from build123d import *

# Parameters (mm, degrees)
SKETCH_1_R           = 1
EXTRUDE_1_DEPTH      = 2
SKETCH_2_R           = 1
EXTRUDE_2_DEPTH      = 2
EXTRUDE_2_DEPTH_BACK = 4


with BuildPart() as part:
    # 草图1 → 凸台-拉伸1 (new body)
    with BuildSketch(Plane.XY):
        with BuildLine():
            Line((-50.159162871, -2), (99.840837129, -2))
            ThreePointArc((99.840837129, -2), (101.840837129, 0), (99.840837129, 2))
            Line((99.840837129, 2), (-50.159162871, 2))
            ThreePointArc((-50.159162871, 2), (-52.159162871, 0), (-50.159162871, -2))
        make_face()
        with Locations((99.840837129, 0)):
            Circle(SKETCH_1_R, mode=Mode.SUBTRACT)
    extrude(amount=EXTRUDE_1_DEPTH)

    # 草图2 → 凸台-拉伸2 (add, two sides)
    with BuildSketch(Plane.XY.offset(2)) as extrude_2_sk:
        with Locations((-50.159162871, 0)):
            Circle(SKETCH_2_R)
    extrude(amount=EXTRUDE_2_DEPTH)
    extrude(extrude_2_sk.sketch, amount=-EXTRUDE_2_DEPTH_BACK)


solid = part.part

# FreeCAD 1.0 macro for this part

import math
import FreeCAD as App
import Part
import Sketcher
from FreeCAD import Vector

doc = App.newDocument("Part")
params = doc.addObject("Spreadsheet::Sheet", "Params")
for row, (alias, value) in enumerate([
    ("sketch1_diameter", "2 mm"),
    ("sketch1_radius", "2 mm"),
    ("sketch1_width", "150 mm"),
    ("pad1_length", "2 mm"),
    ("sketch2_diameter", "2 mm"),
    ("pad2_length", "2 mm"),
    ("pad2_length2", "4 mm"),
], start=1):
    params.set(f"A{row}", alias)
    params.set(f"B{row}", "=" + value)
    params.setAlias(f"B{row}", alias)

body = doc.addObject("PartDesign::Body", "Body")

# Sketch on XY plane
sketch1 = doc.addObject("Sketcher::SketchObject", "Sketch")
body.addObject(sketch1)
sketch1.AttachmentSupport = (doc.XY_Plane, [""])
sketch1.MapMode = "FlatFace"
sketch1.addGeometry(Part.LineSegment(Vector(-50.2, -2, 0), Vector(99.8, -2, 0)), False)
sketch1.addGeometry(Part.ArcOfCircle(Part.Circle(Vector(99.8, 0, 0), Vector(0, 0, 1), 2), math.radians(-90), math.radians(90)), False)
sketch1.addGeometry(Part.LineSegment(Vector(99.8, 2, 0), Vector(-50.2, 2, 0)), False)
sketch1.addGeometry(Part.ArcOfCircle(Part.Circle(Vector(-50.2, 0, 0), Vector(0, 0, 1), 2), math.radians(90), math.radians(270)), False)
sketch1.addGeometry(Part.Circle(Vector(99.8, 0, 0), Vector(0, 0, 1), 1), False)
sketch1.addConstraint(Sketcher.Constraint("Tangent", 0, 2, 1, 1))
sketch1.addConstraint(Sketcher.Constraint("Tangent", 1, 2, 2, 1))
sketch1.addConstraint(Sketcher.Constraint("Tangent", 2, 2, 3, 1))
sketch1.addConstraint(Sketcher.Constraint("Tangent", 3, 2, 0, 1))
sketch1.addConstraint(Sketcher.Constraint("Horizontal", 0))
sketch1.addConstraint(Sketcher.Constraint("Horizontal", 2))
sketch1.addConstraint(Sketcher.Constraint("Coincident", 4, 3, 1, 3))
sketch1.addConstraint(Sketcher.Constraint("PointOnObject", 1, 3, -1))
sketch1.addConstraint(Sketcher.Constraint("Diameter", 4, 2.0))
sketch1.addConstraint(Sketcher.Constraint("Radius", 1, 2.0))
sketch1.addConstraint(Sketcher.Constraint("DistanceX", 0, 1, 0, 2, 150.0))
sketch1.addConstraint(Sketcher.Constraint("DistanceX", -1, 1, 1, 3, 99.840837))
sketch1.setExpression("Constraints[8]", "Params.sketch1_diameter")
sketch1.setExpression("Constraints[9]", "Params.sketch1_radius")
sketch1.setExpression("Constraints[10]", "Params.sketch1_width")
pad1 = doc.addObject("PartDesign::Pad", "Pad")
body.addObject(pad1)
pad1.Profile = sketch1
pad1.setExpression("Length", "Params.pad1_length")

# Sketch on XY plane
sketch2 = doc.addObject("Sketcher::SketchObject", "Sketch001")
body.addObject(sketch2)
sketch2.AttachmentSupport = (doc.XY_Plane, [""])
sketch2.MapMode = "FlatFace"
sketch2.AttachmentOffset = App.Placement(Vector(0, 0, 2), App.Rotation())
sketch2.addGeometry(Part.Circle(Vector(-50.2, 0, 0), Vector(0, 0, 1), 1), False)
sketch2.addConstraint(Sketcher.Constraint("PointOnObject", 0, 3, -1))
sketch2.addConstraint(Sketcher.Constraint("Diameter", 0, 2.0))
sketch2.addConstraint(Sketcher.Constraint("DistanceX", 0, 3, -1, 1, 50.159163))
sketch2.setExpression("Constraints[1]", "Params.sketch2_diameter")
pad2 = doc.addObject("PartDesign::Pad", "Pad001")
body.addObject(pad2)
pad2.Profile = sketch2
pad2.Type = "TwoLengths"
pad2.setExpression("Length", "Params.pad2_length")
pad2.setExpression("Length2", "Params.pad2_length2")

doc.recompute()
